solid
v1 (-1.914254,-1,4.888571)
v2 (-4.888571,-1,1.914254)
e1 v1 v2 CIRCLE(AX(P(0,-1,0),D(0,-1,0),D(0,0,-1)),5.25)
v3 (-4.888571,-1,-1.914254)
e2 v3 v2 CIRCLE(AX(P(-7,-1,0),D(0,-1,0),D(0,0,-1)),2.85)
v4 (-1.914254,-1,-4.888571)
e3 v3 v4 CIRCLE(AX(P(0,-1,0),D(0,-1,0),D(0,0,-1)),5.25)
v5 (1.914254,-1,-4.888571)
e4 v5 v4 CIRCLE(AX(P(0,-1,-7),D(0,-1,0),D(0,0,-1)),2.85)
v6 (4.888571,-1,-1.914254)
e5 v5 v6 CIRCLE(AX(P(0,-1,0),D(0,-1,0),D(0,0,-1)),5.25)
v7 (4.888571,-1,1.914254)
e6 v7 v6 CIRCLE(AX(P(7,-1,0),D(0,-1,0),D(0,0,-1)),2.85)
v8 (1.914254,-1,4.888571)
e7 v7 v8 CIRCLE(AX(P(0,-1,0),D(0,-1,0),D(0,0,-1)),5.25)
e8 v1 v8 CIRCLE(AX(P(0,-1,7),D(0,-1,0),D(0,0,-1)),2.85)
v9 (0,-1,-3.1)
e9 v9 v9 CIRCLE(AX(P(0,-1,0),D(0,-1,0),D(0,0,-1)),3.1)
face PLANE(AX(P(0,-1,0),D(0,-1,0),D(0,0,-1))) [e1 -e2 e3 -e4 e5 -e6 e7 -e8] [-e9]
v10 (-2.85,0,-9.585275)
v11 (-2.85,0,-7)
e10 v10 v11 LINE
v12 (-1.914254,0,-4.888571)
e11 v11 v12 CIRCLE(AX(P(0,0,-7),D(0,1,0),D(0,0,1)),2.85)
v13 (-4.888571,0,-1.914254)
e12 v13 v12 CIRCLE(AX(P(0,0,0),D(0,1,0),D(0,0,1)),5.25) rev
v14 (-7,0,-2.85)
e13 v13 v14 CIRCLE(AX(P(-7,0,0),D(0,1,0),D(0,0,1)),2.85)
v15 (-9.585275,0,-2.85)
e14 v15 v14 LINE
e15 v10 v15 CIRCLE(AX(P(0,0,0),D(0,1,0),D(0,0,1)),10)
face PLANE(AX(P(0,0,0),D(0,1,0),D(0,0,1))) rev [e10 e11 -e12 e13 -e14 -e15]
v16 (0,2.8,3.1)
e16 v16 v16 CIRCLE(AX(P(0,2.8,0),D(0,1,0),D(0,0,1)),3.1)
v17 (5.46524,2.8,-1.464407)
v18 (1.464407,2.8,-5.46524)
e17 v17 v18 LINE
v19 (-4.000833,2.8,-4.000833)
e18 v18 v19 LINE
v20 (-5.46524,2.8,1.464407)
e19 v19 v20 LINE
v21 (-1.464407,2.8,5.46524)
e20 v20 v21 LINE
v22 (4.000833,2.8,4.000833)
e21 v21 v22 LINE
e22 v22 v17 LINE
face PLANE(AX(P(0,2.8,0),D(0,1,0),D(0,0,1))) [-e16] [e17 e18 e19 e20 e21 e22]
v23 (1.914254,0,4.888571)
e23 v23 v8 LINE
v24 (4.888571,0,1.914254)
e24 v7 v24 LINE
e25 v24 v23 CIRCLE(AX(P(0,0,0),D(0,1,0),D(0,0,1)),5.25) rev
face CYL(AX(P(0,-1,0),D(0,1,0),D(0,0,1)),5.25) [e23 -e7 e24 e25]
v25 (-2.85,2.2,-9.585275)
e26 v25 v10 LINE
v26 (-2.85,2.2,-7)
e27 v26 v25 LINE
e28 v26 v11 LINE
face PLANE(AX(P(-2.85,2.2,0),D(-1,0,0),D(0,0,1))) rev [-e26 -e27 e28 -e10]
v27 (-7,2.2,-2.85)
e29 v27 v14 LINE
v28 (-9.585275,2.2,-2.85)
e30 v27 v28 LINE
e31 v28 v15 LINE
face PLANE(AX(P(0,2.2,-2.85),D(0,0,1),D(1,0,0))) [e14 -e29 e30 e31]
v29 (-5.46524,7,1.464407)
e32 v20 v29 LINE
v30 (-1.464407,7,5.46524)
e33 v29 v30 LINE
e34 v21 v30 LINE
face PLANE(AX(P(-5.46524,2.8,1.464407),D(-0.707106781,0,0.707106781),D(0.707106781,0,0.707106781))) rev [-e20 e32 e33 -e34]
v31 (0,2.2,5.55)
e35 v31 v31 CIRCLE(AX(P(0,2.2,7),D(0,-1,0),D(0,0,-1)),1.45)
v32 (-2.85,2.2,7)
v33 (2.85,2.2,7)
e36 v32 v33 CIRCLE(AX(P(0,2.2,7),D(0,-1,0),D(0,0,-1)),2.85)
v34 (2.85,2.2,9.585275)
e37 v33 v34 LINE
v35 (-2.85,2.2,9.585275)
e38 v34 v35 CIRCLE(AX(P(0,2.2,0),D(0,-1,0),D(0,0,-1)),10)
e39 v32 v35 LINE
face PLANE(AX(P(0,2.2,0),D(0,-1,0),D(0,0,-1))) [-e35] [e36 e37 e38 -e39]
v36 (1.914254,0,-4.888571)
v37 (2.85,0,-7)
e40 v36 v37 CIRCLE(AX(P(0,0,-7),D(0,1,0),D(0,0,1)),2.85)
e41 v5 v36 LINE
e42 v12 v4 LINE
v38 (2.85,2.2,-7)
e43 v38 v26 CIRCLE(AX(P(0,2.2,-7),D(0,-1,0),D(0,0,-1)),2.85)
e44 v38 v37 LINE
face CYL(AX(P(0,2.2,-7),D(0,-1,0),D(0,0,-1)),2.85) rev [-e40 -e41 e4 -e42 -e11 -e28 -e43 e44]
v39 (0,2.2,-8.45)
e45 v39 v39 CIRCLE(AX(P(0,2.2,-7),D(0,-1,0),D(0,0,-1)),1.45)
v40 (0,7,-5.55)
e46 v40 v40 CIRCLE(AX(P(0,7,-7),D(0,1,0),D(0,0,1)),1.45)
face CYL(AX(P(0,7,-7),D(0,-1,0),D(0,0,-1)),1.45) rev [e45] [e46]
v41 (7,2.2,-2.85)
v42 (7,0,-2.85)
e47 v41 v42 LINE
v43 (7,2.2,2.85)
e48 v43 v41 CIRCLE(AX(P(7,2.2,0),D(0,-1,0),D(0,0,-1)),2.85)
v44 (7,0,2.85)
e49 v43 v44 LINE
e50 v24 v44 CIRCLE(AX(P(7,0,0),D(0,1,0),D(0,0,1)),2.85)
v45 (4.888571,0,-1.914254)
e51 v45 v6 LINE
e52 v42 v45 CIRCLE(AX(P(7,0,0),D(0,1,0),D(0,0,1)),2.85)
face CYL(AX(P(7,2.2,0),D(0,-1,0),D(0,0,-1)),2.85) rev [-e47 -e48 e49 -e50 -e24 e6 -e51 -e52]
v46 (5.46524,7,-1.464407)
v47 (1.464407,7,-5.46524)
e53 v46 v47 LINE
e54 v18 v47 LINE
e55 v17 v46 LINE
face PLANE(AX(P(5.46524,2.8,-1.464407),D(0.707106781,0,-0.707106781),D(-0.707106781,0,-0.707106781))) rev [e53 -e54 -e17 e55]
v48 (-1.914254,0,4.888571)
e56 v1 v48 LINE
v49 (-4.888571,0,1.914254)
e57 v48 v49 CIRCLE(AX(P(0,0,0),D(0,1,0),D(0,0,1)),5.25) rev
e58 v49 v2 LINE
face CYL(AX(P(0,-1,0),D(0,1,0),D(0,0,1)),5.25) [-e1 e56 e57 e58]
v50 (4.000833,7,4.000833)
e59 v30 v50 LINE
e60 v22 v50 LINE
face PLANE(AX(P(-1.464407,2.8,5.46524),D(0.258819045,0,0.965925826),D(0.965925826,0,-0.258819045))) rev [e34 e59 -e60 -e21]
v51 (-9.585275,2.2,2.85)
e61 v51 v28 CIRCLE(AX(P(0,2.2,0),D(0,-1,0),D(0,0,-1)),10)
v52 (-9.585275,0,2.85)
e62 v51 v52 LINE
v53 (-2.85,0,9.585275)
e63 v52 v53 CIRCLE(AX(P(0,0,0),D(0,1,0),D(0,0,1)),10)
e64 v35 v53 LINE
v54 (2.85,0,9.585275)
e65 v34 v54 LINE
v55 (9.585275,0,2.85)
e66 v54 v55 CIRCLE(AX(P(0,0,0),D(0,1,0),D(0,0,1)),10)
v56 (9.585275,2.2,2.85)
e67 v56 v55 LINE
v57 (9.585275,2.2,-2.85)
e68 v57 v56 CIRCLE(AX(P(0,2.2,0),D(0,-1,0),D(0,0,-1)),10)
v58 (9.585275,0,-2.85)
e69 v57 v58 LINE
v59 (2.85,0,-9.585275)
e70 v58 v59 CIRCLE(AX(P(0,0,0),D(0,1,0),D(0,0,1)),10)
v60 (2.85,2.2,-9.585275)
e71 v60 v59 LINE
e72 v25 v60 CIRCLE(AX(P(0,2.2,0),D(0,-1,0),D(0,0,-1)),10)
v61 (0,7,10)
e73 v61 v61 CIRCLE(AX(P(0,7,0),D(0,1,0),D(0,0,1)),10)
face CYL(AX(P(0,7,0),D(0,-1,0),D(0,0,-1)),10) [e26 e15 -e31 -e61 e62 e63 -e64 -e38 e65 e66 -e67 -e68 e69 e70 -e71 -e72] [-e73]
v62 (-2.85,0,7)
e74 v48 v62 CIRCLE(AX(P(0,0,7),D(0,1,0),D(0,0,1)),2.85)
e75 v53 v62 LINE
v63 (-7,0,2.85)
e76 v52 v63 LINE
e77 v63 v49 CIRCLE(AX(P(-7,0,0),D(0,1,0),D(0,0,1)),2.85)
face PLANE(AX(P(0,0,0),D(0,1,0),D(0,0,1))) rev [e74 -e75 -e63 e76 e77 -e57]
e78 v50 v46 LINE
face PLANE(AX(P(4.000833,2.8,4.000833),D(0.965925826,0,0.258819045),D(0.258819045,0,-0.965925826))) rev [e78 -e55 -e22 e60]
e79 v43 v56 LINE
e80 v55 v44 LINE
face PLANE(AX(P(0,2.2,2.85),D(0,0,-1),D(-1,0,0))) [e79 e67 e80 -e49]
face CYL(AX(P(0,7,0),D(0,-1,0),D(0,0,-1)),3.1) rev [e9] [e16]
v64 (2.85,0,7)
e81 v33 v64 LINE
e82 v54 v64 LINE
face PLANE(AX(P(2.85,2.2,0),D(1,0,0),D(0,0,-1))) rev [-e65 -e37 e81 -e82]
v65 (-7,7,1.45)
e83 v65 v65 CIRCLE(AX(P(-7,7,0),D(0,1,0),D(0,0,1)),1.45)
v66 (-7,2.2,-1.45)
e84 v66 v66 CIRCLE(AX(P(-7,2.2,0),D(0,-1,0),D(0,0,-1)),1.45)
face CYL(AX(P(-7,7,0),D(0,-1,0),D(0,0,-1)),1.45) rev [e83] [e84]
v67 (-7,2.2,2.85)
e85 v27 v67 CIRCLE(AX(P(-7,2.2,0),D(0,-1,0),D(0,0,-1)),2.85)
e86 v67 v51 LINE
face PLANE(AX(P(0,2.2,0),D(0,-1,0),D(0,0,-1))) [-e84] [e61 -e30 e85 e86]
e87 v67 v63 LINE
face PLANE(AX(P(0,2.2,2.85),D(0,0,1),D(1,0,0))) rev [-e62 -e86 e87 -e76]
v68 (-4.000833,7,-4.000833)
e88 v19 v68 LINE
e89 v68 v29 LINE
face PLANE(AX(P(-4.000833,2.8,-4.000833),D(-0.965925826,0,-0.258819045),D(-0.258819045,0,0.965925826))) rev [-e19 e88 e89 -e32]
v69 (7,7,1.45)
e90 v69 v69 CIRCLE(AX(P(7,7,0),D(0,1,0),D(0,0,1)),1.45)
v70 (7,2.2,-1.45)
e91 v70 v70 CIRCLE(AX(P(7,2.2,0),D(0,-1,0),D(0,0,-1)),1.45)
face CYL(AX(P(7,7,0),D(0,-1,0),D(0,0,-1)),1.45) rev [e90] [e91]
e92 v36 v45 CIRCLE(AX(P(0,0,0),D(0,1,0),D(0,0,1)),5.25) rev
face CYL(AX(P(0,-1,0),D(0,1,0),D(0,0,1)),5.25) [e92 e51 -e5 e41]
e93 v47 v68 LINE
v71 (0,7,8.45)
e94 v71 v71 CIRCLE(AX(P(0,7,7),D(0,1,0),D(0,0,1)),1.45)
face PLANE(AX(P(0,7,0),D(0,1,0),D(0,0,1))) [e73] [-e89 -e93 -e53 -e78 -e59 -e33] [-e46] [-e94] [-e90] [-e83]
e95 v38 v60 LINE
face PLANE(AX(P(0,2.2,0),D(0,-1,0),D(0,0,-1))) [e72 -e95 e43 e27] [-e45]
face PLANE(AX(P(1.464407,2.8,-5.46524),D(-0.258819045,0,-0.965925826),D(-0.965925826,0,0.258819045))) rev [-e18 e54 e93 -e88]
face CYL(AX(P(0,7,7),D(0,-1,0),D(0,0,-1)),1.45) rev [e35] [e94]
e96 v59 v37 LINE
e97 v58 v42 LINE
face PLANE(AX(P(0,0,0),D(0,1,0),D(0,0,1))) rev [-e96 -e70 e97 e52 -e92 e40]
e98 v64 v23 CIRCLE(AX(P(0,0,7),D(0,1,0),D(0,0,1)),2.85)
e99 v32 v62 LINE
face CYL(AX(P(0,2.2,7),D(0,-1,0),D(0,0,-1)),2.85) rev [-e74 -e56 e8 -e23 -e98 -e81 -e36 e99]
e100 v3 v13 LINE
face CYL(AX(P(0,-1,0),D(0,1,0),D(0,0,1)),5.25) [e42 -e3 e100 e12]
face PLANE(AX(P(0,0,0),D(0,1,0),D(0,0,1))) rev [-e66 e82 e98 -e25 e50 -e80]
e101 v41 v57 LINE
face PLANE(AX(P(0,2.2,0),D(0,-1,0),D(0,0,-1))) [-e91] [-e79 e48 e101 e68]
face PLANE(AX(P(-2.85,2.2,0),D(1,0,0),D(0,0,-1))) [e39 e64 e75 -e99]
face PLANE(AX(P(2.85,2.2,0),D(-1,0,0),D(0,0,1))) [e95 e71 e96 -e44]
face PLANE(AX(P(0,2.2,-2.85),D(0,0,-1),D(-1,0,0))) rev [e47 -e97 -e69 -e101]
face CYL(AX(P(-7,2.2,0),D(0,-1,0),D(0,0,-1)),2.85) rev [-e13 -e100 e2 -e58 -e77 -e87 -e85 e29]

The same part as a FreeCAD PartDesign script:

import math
import FreeCAD as App
import Part
import Sketcher
from FreeCAD import Vector
Q = App.Units.Quantity

doc = App.newDocument("Part")
body = doc.addObject("PartDesign::Body", "Body")

# Sketch on XZ plane
sketch1 = body.newObject("Sketcher::SketchObject", "Sketch")
sketch1.AttachmentSupport = (doc.getObject("XZ_Plane"), [""])
sketch1.MapMode = "FlatFace"
sketch1.addGeometry([
    Part.Circle(Vector(0, 0, 0), Vector(0, 0, 1), 10),  # 0
    Part.Circle(Vector(0, 7, 0), Vector(0, 0, 1), 1.4),  # 1
    Part.Circle(Vector(-7, 0, 0), Vector(0, 0, 1), 1.4),  # 2
    Part.Circle(Vector(0, 0, 0), Vector(0, 0, 1), 3.1),  # 3
    Part.Circle(Vector(7, 0, 0), Vector(0, 0, 1), 1.4),  # 4
    Part.Circle(Vector(0, -7, 0), Vector(0, 0, 1), 1.4),  # 5
], False)
sketch1.addConstraint([
    Sketcher.Constraint("Coincident", 0, 3, -1, 1),
    Sketcher.Constraint("Coincident", 3, 3, -1, 1),
    Sketcher.Constraint("Equal", 1, 2),
    Sketcher.Constraint("Equal", 2, 4),
    Sketcher.Constraint("Equal", 4, 5),
    Sketcher.Constraint("Symmetric", 2, 3, 4, 3, -1, 1),
    Sketcher.Constraint("Symmetric", 1, 3, 5, 3, -1, 1),
    Sketcher.Constraint("PointOnObject", 1, 3, -2),
    Sketcher.Constraint("PointOnObject", 2, 3, -1),
    Sketcher.Constraint("Diameter", 0, 20.0),
    Sketcher.Constraint("Diameter", 1, 2.9),
    Sketcher.Constraint("Diameter", 3, 6.2),
    Sketcher.Constraint("DistanceY", -1, 1, 1, 3, 7.0),
    Sketcher.Constraint("DistanceX", 2, 3, -1, 1, 7.0),
])
pad1 = body.newObject("PartDesign::Pad", "Pad")
pad1.Profile = sketch1
pad1.Length = 7
pad1.Reversed = True

# Sketch on XZ plane
sketch2 = body.newObject("Sketcher::SketchObject", "Sketch001")
sketch2.AttachmentSupport = (doc.getObject("XZ_Plane"), [""])
sketch2.MapMode = "FlatFace"
sketch2.addGeometry([
    Part.Circle(Vector(0, 0, 0), Vector(0, 0, 1), 5.2),
    Part.Circle(Vector(0, 0, 0), Vector(0, 0, 1), 3.1),
], False)
sketch2.addConstraint([
    Sketcher.Constraint("Coincident", 0, 3, -1, 1),
    Sketcher.Constraint("Coincident", 1, 3, -1, 1),
    Sketcher.Constraint("Diameter", 0, 10.5),
    Sketcher.Constraint("Diameter", 1, 6.2),
])
pad2 = body.newObject("PartDesign::Pad", "Pad001")
pad2.Profile = sketch2
pad2.Length = 1

# Sketch on XZ plane
sketch3 = body.newObject("Sketcher::SketchObject", "Sketch002")
sketch3.AttachmentSupport = (doc.getObject("XZ_Plane"), [""])
sketch3.MapMode = "FlatFace"
sketch3.AttachmentOffset = App.Placement(Vector(0, 0, 1), App.Rotation())
sketch3.addGeometry([
    Part.LineSegment(Vector(-7, 2.9, 0), Vector(-9.6, 2.9, 0)),  # 0
    Part.ArcOfCircle(Part.Circle(Vector(0, 0, 0), Vector(0, 0, 1), 10), math.radians(163), math.radians(197)),  # 1
    Part.LineSegment(Vector(-9.6, -2.9, 0), Vector(-7, -2.9, 0)),  # 2
    Part.ArcOfCircle(Part.Circle(Vector(-7, 0, 0), Vector(0, 0, 1), 2.8), math.radians(-90), math.radians(-42)),  # 3
    Part.ArcOfCircle(Part.Circle(Vector(-7, 0, 0), Vector(0, 0, 1), 2.8), math.radians(-42), math.radians(42)),  # 4
    Part.ArcOfCircle(Part.Circle(Vector(-7, 0, 0), Vector(0, 0, 1), 2.8), math.radians(42), math.radians(90)),  # 5
    Part.LineSegment(Vector(-2.9, 9.6, 0), Vector(-2.9, 7, 0)),  # 6
    Part.ArcOfCircle(Part.Circle(Vector(0, 7, 0), Vector(0, 0, 1), 2.8), math.radians(180), math.radians(228)),  # 7
    Part.ArcOfCircle(Part.Circle(Vector(0, 7, 0), Vector(0, 0, 1), 2.8), math.radians(-132), math.radians(-48)),  # 8
    Part.ArcOfCircle(Part.Circle(Vector(0, 7, 0), Vector(0, 0, 1), 2.8), math.radians(-48), math.radians(0)),  # 9
    Part.LineSegment(Vector(2.9, 7, 0), Vector(2.9, 9.6, 0)),  # 10
    Part.ArcOfCircle(Part.Circle(Vector(0, 0, 0), Vector(0, 0, 1), 10), math.radians(73), math.radians(107)),  # 11
    Part.ArcOfCircle(Part.Circle(Vector(0, 0, 0), Vector(0, 0, 1), 10), math.radians(0), math.radians(16.56)),  # 12
    Part.LineSegment(Vector(9.6, 2.9, 0), Vector(7, 2.9, 0)),  # 13
    Part.ArcOfCircle(Part.Circle(Vector(7, 0, 0), Vector(0, 0, 1), 2.8), math.radians(90), math.radians(138)),  # 14
    Part.ArcOfCircle(Part.Circle(Vector(7, 0, 0), Vector(0, 0, 1), 2.8), math.radians(138), math.radians(222)),  # 15
    Part.ArcOfCircle(Part.Circle(Vector(7, 0, 0), Vector(0, 0, 1), 2.8), math.radians(-138), math.radians(-90)),  # 16
    Part.LineSegment(Vector(7, -2.9, 0), Vector(9.6, -2.9, 0)),  # 17
    Part.ArcOfCircle(Part.Circle(Vector(0, 0, 0), Vector(0, 0, 1), 10), math.radians(-16.56), math.radians(0)),  # 18
    Part.LineSegment(Vector(-2.9, -7, 0), Vector(-2.9, -9.6, 0)),  # 19
    Part.ArcOfCircle(Part.Circle(Vector(0, 0, 0), Vector(0, 0, 1), 10), math.radians(-107), math.radians(-73)),  # 20
    Part.LineSegment(Vector(2.9, -9.6, 0), Vector(2.9, -7, 0)),  # 21
    Part.ArcOfCircle(Part.Circle(Vector(0, -7, 0), Vector(0, 0, 1), 2.8), math.radians(0), math.radians(48)),  # 22
    Part.ArcOfCircle(Part.Circle(Vector(0, -7, 0), Vector(0, 0, 1), 2.8), math.radians(48), math.radians(132)),  # 23
    Part.ArcOfCircle(Part.Circle(Vector(0, -7, 0), Vector(0, 0, 1), 2.8), math.radians(132), math.radians(180)),  # 24
], False)
sketch3.addConstraint([
    Sketcher.Constraint("Coincident", 0, 2, 1, 1),
    Sketcher.Constraint("Coincident", 1, 2, 2, 1),
    Sketcher.Constraint("Tangent", 2, 2, 3, 1),
    Sketcher.Constraint("Tangent", 3, 2, 4, 1),
    Sketcher.Constraint("Tangent", 4, 2, 5, 1),
    Sketcher.Constraint("Tangent", 5, 2, 0, 1),
    Sketcher.Constraint("Tangent", 6, 2, 7, 1),
    Sketcher.Constraint("Tangent", 7, 2, 8, 1),
    Sketcher.Constraint("Tangent", 8, 2, 9, 1),
    Sketcher.Constraint("Tangent", 9, 2, 10, 1),
    Sketcher.Constraint("Coincident", 10, 2, 11, 1),
    Sketcher.Constraint("Coincident", 11, 2, 6, 1),
    Sketcher.Constraint("Coincident", 12, 2, 13, 1),
    Sketcher.Constraint("Tangent", 13, 2, 14, 1),
    Sketcher.Constraint("Tangent", 14, 2, 15, 1),
    Sketcher.Constraint("Tangent", 15, 2, 16, 1),
    Sketcher.Constraint("Tangent", 16, 2, 17, 1),
    Sketcher.Constraint("Coincident", 17, 2, 18, 1),
    Sketcher.Constraint("Tangent", 18, 2, 12, 1),
    Sketcher.Constraint("Coincident", 19, 2, 20, 1),
    Sketcher.Constraint("Coincident", 20, 2, 21, 1),
    Sketcher.Constraint("Tangent", 21, 2, 22, 1),
    Sketcher.Constraint("Tangent", 22, 2, 23, 1),
    Sketcher.Constraint("Tangent", 23, 2, 24, 1),
    Sketcher.Constraint("Tangent", 24, 2, 19, 1),
    Sketcher.Constraint("Horizontal", 0),
    Sketcher.Constraint("Horizontal", 2),
    Sketcher.Constraint("Vertical", 6),
    Sketcher.Constraint("Vertical", 10),
    Sketcher.Constraint("Horizontal", 13),
    Sketcher.Constraint("Horizontal", 17),
    Sketcher.Constraint("Vertical", 19),
    Sketcher.Constraint("Vertical", 21),
    Sketcher.Constraint("Coincident", 1, 3, -1, 1),
    Sketcher.Constraint("Coincident", 11, 3, -1, 1),
    Sketcher.Constraint("Coincident", 12, 3, -1, 1),
    Sketcher.Constraint("Coincident", 20, 3, -1, 1),
    Sketcher.Constraint("Coincident", 5, 3, 3, 3),
    Sketcher.Constraint("Coincident", 9, 3, 7, 3),
    Sketcher.Constraint("Coincident", 16, 3, 14, 3),
    Sketcher.Constraint("Coincident", 24, 3, 22, 3),
    Sketcher.Constraint("Equal", 5, 7),
    Sketcher.Constraint("Equal", 1, 11),
    Sketcher.Constraint("Equal", 11, 12),
    Sketcher.Constraint("Equal", 9, 14),
    Sketcher.Constraint("Equal", 12, 18),
    Sketcher.Constraint("Equal", 18, 20),
    Sketcher.Constraint("Equal", 16, 22),
    Sketcher.Constraint("Symmetric", 3, 3, 14, 3, -1, 1),
    Sketcher.Constraint("Symmetric", 7, 3, 22, 3, -1, 1),
    Sketcher.Constraint("Symmetric", 7, 2, 8, 2, -2),
    Sketcher.Constraint("Symmetric", 4, 2, 14, 2, -2),
    Sketcher.Constraint("PointOnObject", 18, 2, -1),
    Sketcher.Constraint("Horizontal", 3, 2, 15, 2),
    Sketcher.Constraint("Horizontal", 22, 2, 23, 2),
    Sketcher.Constraint("Vertical", 3, 2, 4, 2),
    Sketcher.Constraint("Vertical", 8, 2, 22, 2),
    Sketcher.Constraint("Equal", 17, 6),
    Sketcher.Constraint("Radius", 1, 10.0),
    Sketcher.Constraint("Radius", 3, 2.85),
    Sketcher.Constraint("DistanceX", 3, 3, -1, 1, 7.0),
    Sketcher.Constraint("DistanceX", 3, 2, -1, 1, 4.888571),
    Sketcher.Constraint("DistanceY", -1, 1, 7, 2, 4.888571),
])
pocket1 = body.newObject("PartDesign::Pocket", "Pocket")
pocket1.Profile = sketch3
pocket1.Length = 3.2

# Sketch on XZ plane
sketch4 = body.newObject("Sketcher::SketchObject", "Sketch003")
sketch4.AttachmentSupport = (doc.getObject("XZ_Plane"), [""])
sketch4.MapMode = "FlatFace"
sketch4.AttachmentOffset = App.Placement(Vector(0, 0, -7), App.Rotation())
sketch4.addGeometry([
    Part.LineSegment(Vector(1, -5, 0), Vector(-4, -4, 0)),  # 0
    Part.LineSegment(Vector(-4, -4, 0), Vector(-5, 1, 0)),  # 1
    Part.LineSegment(Vector(-5, 1, 0), Vector(-1, 5, 0)),  # 2
    Part.LineSegment(Vector(-1, 5, 0), Vector(4, 4, 0)),  # 3
    Part.LineSegment(Vector(4, 4, 0), Vector(5, -1, 0)),  # 4
    Part.LineSegment(Vector(5, -1, 0), Vector(1, -5, 0)),  # 5
], False)
sketch4.addConstraint([
    Sketcher.Constraint("Coincident", 0, 2, 1, 1),
    Sketcher.Constraint("Coincident", 1, 2, 2, 1),
    Sketcher.Constraint("Coincident", 2, 2, 3, 1),
    Sketcher.Constraint("Coincident", 3, 2, 4, 1),
    Sketcher.Constraint("Coincident", 4, 2, 5, 1),
    Sketcher.Constraint("Coincident", 5, 2, 0, 1),
    Sketcher.Constraint("Symmetric", 0, 2, 3, 2, -1, 1),
    Sketcher.Constraint("Symmetric", 1, 2, 4, 2, -1, 1),
    Sketcher.Constraint("Symmetric", 2, 2, 5, 2, -1, 1),
    Sketcher.Constraint("Equal", 0, 1),
    Sketcher.Constraint("Equal", 1, 2),
    Sketcher.Constraint("Angle", 0, Q("165 deg")),
    Sketcher.Constraint("Angle", 1, Q("105 deg")),
    Sketcher.Constraint("Angle", 2, Q("45 deg")),
    Sketcher.Constraint("DistanceX", 1, 2, -1, 1, 5.46524),
])
pocket2 = body.newObject("PartDesign::Pocket", "Pocket001")
pocket2.Profile = sketch4
pocket2.Length = 4.2
pocket2.Reversed = True

doc.recompute()
